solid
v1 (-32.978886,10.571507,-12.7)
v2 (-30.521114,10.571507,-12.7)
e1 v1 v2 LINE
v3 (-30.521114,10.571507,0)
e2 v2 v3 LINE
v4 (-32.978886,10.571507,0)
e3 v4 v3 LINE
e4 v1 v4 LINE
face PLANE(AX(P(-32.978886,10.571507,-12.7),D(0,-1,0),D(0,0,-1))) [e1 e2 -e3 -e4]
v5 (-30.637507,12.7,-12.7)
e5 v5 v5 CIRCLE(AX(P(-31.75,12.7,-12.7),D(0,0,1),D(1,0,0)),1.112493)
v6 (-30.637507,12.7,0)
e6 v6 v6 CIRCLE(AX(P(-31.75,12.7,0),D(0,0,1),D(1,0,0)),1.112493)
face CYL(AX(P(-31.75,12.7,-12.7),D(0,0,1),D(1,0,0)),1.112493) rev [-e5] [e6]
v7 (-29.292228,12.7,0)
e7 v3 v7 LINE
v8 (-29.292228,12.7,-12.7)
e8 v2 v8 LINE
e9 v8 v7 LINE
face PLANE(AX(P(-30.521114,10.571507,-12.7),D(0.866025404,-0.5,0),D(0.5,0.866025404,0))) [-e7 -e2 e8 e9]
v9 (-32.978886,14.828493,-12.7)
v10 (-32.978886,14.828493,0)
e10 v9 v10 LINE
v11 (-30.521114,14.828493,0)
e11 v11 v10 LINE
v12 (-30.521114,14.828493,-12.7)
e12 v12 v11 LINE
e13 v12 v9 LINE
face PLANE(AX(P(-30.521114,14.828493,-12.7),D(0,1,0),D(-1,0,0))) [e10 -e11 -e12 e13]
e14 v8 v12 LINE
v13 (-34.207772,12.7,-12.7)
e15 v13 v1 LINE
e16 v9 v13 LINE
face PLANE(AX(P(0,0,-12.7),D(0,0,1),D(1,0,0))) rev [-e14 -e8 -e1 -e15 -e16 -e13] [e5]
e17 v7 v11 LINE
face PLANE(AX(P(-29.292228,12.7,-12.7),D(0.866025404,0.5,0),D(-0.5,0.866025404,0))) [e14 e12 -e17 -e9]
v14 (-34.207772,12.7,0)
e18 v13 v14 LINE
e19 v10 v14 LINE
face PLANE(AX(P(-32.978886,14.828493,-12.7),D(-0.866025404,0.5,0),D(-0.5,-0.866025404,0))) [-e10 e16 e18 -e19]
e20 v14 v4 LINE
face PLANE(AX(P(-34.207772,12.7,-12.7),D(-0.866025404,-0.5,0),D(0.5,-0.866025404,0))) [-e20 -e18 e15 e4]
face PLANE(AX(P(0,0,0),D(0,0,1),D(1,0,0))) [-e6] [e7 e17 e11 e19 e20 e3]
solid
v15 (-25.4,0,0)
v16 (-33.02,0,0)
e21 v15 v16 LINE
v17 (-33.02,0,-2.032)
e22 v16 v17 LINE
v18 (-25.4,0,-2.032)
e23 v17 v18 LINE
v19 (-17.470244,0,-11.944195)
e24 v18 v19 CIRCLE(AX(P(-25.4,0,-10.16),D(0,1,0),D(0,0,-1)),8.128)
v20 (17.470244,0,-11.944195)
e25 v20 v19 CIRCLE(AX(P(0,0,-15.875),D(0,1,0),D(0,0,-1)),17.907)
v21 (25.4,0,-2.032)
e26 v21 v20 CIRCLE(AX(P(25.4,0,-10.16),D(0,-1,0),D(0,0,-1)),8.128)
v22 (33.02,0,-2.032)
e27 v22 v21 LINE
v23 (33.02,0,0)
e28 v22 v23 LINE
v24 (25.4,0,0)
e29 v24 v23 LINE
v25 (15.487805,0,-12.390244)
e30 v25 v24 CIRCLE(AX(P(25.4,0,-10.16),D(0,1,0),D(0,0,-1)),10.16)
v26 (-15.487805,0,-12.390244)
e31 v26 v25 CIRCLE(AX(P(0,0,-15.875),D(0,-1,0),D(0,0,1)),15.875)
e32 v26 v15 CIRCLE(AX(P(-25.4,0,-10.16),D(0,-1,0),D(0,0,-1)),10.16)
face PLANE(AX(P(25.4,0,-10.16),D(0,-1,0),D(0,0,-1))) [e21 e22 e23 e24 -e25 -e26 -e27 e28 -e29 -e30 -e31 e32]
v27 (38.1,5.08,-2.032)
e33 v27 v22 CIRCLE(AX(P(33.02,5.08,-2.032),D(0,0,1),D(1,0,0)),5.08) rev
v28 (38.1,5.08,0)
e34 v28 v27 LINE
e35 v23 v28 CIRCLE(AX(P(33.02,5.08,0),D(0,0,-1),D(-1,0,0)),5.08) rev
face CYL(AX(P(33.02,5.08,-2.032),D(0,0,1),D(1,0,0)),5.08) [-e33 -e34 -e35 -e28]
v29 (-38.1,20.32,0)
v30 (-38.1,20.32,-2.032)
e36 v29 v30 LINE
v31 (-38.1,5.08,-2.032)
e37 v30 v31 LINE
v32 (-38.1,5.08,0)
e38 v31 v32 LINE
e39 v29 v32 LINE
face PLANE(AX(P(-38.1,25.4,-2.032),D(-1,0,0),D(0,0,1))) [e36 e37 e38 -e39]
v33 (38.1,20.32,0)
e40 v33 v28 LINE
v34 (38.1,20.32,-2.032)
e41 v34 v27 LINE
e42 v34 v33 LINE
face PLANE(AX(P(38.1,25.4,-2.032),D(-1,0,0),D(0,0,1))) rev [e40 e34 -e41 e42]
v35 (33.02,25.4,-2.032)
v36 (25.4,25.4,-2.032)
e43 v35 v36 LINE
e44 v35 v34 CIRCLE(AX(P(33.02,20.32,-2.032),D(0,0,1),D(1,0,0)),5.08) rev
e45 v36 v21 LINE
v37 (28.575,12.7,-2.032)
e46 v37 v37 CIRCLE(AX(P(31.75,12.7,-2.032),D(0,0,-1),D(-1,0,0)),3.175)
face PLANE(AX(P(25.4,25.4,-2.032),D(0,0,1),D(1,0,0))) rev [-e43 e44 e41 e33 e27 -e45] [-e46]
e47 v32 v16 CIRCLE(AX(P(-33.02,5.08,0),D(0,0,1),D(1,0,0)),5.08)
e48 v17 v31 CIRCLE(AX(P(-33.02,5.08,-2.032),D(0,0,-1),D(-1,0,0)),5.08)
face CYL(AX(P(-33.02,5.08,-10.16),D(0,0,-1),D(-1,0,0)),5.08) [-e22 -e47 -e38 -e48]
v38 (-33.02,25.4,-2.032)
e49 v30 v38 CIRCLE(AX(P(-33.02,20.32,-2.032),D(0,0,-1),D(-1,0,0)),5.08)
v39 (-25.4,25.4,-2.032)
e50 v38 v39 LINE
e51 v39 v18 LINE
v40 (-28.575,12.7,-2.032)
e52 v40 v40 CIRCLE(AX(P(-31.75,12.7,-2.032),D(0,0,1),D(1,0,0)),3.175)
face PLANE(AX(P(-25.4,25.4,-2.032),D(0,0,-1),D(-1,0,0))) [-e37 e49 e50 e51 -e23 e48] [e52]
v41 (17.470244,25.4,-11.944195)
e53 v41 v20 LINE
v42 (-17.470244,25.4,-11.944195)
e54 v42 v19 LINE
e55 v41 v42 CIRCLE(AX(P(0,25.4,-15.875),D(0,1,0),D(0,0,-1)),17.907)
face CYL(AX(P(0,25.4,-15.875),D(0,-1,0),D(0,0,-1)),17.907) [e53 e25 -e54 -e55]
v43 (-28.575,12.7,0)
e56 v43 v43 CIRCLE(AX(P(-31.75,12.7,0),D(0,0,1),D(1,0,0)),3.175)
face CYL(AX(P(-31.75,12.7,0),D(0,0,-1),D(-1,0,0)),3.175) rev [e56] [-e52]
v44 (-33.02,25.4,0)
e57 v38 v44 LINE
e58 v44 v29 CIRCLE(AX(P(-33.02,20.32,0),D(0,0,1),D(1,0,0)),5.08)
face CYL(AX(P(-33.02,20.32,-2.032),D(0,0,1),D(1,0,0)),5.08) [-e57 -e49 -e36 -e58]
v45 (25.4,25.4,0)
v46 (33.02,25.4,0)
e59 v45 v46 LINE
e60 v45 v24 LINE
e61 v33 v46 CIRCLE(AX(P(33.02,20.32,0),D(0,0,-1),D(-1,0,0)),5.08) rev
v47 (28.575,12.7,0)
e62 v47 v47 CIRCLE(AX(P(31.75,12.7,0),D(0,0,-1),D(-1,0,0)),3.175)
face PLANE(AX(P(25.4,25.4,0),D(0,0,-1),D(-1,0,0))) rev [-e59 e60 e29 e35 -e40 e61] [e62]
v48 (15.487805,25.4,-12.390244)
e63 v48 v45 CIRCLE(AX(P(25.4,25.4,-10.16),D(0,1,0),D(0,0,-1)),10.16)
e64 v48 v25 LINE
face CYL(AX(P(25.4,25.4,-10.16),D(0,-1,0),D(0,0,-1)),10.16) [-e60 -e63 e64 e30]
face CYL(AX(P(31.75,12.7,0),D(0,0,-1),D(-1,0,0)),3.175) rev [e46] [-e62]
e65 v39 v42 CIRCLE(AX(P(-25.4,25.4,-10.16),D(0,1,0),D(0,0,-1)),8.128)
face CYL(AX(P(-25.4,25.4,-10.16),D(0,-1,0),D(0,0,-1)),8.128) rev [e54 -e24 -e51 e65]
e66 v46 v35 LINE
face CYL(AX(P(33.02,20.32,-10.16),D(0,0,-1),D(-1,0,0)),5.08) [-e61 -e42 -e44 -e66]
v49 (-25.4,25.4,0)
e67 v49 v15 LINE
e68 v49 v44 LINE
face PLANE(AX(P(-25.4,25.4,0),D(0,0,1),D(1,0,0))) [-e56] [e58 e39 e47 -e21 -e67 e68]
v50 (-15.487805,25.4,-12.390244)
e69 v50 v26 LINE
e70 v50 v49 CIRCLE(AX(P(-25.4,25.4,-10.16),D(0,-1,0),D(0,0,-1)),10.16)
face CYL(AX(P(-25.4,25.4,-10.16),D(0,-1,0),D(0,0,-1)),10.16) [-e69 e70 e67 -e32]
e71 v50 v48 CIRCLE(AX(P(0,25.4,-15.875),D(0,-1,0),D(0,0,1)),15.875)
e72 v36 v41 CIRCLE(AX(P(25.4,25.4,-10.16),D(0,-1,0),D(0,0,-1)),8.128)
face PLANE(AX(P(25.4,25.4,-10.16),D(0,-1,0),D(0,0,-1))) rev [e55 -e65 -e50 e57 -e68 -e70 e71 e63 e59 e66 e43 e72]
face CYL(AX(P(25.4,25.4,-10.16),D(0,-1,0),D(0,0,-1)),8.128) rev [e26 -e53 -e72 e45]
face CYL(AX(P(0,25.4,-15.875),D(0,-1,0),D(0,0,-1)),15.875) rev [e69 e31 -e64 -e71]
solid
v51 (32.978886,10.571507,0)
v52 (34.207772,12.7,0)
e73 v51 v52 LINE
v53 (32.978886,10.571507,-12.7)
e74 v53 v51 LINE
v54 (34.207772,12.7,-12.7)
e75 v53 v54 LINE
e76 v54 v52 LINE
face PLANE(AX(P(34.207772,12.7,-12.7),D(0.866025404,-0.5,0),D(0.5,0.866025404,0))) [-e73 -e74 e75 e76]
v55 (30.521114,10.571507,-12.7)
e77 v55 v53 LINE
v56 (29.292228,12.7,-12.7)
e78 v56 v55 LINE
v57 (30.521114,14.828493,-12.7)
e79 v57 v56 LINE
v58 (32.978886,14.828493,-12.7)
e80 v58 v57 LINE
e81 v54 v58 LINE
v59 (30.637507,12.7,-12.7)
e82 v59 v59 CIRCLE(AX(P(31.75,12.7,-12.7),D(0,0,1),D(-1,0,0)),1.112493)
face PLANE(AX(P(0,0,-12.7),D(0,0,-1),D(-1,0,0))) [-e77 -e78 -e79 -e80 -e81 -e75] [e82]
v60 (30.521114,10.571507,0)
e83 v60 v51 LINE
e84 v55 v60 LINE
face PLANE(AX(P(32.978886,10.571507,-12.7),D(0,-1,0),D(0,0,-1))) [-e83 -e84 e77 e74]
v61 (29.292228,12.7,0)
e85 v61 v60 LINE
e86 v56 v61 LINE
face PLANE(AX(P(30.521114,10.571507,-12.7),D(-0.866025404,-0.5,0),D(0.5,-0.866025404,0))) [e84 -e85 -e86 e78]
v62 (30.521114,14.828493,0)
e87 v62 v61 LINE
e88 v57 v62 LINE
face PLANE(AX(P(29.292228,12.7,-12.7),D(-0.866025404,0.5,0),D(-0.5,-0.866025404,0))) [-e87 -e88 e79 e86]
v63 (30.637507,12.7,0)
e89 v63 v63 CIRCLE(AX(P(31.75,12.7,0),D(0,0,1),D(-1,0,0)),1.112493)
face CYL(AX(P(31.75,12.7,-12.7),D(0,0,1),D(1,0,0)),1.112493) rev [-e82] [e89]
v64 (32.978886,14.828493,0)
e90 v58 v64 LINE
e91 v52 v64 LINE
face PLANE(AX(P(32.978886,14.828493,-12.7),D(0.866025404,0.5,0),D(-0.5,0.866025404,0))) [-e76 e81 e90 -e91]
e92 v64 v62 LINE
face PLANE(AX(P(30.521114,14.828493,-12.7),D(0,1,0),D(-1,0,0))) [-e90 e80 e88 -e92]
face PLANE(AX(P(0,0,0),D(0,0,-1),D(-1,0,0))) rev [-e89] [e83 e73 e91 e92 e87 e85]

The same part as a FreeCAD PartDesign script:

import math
import FreeCAD as App
import Part
import Sketcher
Q = App.Units.Quantity


def edges_at(feature, points):
    """Names of the edges that pass closest to the given points."""
    edges = feature.Shape.Edges
    near = lambda p: min(range(len(edges)), key=lambda i: edges[i].distToShape(Part.Vertex(*p))[0])
    return sorted({f"Edge{near(p) + 1}" for p in points})


def add_polygon(sketch, points):
    """Adds a closed chain of lines whose ends are joined by coincident constraints."""
    first, n = sketch.GeometryCount, len(points)
    for a, b in zip(points, points[1:] + points[:1]):
        sketch.addGeometry(Part.LineSegment(App.Vector(*a, 0), App.Vector(*b, 0)), False)
    for i in range(n):
        sketch.addConstraint(Sketcher.Constraint("Coincident", first + i, 2, first + (i + 1) % n, 1))

doc = App.newDocument("Part")
body = doc.addObject("PartDesign::Body", "Body")

sketch1 = doc.addObject("Sketcher::SketchObject", "Sketch")
body.addObject(sketch1)
sketch1.AttachmentSupport = (doc.XZ_Plane, [""])
sketch1.MapMode = "FlatFace"
sketch1.addGeometry([
    Part.LineSegment(App.Vector(0, -33.8, 0), App.Vector(0, -31.8, 0)),
    Part.ArcOfCircle(Part.Circle(App.Vector(0, -15.9, 0), App.Vector(0, 0, 1), 15.9), math.radians(-90), math.radians(13)),
    Part.ArcOfCircle(Part.Circle(App.Vector(25.4, -10.2, 0), App.Vector(0, 0, 1), 10.2), math.radians(90), math.radians(193)),
    Part.LineSegment(App.Vector(25.4, 0, 0), App.Vector(38.1, 0, 0)),
    Part.LineSegment(App.Vector(38.1, 0, 0), App.Vector(38.1, -2, 0)),
    Part.LineSegment(App.Vector(38.1, -2, 0), App.Vector(25.4, -2, 0)),
    Part.ArcOfCircle(Part.Circle(App.Vector(25.4, -10.2, 0), App.Vector(0, 0, 1), 8.1), math.radians(90), math.radians(193)),
    Part.ArcOfCircle(Part.Circle(App.Vector(0, -15.9, 0), App.Vector(0, 0, 1), 17.9), math.radians(-90), math.radians(13)),
], False)
sketch1.addConstraint([
    Sketcher.Constraint("Coincident", 0, 2, 1, 1),
    Sketcher.Constraint("Tangent", 1, 2, 2, 2),
    Sketcher.Constraint("Tangent", 2, 1, 3, 1),
    Sketcher.Constraint("Coincident", 3, 2, 4, 1),
    Sketcher.Constraint("Coincident", 4, 2, 5, 1),
    Sketcher.Constraint("Tangent", 5, 2, 6, 1),
    Sketcher.Constraint("Tangent", 6, 2, 7, 2),
    Sketcher.Constraint("Coincident", 7, 1, 0, 1),
    Sketcher.Constraint("Vertical", 0),
    Sketcher.Constraint("Horizontal", 3),
    Sketcher.Constraint("Vertical", 4),
    Sketcher.Constraint("Horizontal", 5),
    Sketcher.Constraint("Coincident", 6, 3, 2, 3),
    Sketcher.Constraint("Coincident", 7, 3, 1, 3),
    Sketcher.Constraint("PointOnObject", 1, 3, -2),
    Sketcher.Constraint("PointOnObject", 0, 2, -2),
    Sketcher.Constraint("PointOnObject", 2, 1, -1),
    Sketcher.Constraint("Radius", 2, Q("0.4 in")),
    Sketcher.Constraint("Radius", 6, Q("0.32 in")),
    Sketcher.Constraint("DistanceX", 3, 1, 3, 2, Q("0.5 in")),
    Sketcher.Constraint("DistanceX", -1, 1, 2, 3, Q("1 in")),
    Sketcher.Constraint("Radius", 1, Q("0.625 in")),
])
pad1 = doc.addObject("PartDesign::Pad", "Pad")
body.addObject(pad1)
pad1.Profile = sketch1
pad1.Length = Q("1 in")
pad1.Reversed = True
doc.recompute()

mirrored = doc.addObject("PartDesign::Mirrored", "Mirrored")
body.addObject(mirrored)
mirrored.Originals = [pad1]
mirrored.MirrorPlane = (doc.YZ_Plane, [""])
body.Tip = mirrored
doc.recompute()

fillet = doc.addObject("PartDesign::Fillet", "Fillet")
body.addObject(fillet)
fillet.Base = (mirrored, edges_at(mirrored, [
    (38.1, 25.4, -1.016),
    (-38.1, 25.4, -1.016),
    (-38.1, 0, -1.016),
    (38.1, 0, -1.016),
]))
fillet.Radius = Q("0.2 in")

sketch2 = doc.addObject("Sketcher::SketchObject", "Sketch001")
body.addObject(sketch2)
sketch2.AttachmentSupport = (doc.XY_Plane, [""])
sketch2.MapMode = "FlatFace"
sketch2.AttachmentOffset = App.Placement(App.Vector(0, 0, -0.08 * 25.4), App.Rotation())
sketch2.addGeometry(Part.Circle(App.Vector(31.8, 12.7, 0), App.Vector(0, 0, 1), 3.2), False)
sketch2.addConstraint([
    Sketcher.Constraint("Diameter", 0, Q("0.25 in")),
    Sketcher.Constraint("DistanceY", -1, 1, 0, 3, Q("0.5 in")),
    Sketcher.Constraint("DistanceX", -1, 1, 0, 3, Q("1.25 in")),
])
pocket1 = doc.addObject("PartDesign::Pocket", "Pocket")
body.addObject(pocket1)
pocket1.Profile = sketch2
pocket1.Type = "ThroughAll"
pocket1.Reversed = True
doc.recompute()

mirrored2 = doc.addObject("PartDesign::Mirrored", "Mirrored001")
body.addObject(mirrored2)
mirrored2.Originals = [pocket1]
mirrored2.MirrorPlane = (doc.YZ_Plane, [""])
body.Tip = mirrored2
body2 = doc.addObject("PartDesign::Body", "Body001")

sketch3 = doc.addObject("Sketcher::SketchObject", "Sketch002")
body2.addObject(sketch3)
sketch3.AttachmentSupport = (doc.getObject("XY_Plane001"), [""])
sketch3.MapMode = "FlatFace"
add_polygon(sketch3, [(-29.3, 12.7), (-30.5, 14.8), (-33, 14.8), (-34.2, 12.7), (-33, 10.6), (-30.5, 10.6)])
sketch3.addGeometry(Part.Circle(App.Vector(-31.8, 12.7, 0), App.Vector(0, 0, 1), 1.1), False)
sketch3.addConstraint([
    Sketcher.Constraint("Horizontal", 1),
    Sketcher.Constraint("Horizontal", 4),
    Sketcher.Constraint("Parallel", 0, 3),
    Sketcher.Constraint("Parallel", 2, 5),
    Sketcher.Constraint("Horizontal", 6, 3, 2, 2),
    Sketcher.Constraint("Horizontal", 2, 2, 5, 2),
    Sketcher.Constraint("Vertical", 1, 2, 3, 2),
    Sketcher.Constraint("Vertical", 0, 2, 4, 2),
    Sketcher.Constraint("Angle", 0, Q("120 deg")),
    Sketcher.Constraint("DistanceY", -1, 1, 6, 3, Q("0.5 in")),
    Sketcher.Constraint("DistanceX", 6, 3, -1, 1, Q("1.25 in")),
    Sketcher.Constraint("Diameter", 6, Q("2.224985 mm")),
    Sketcher.Constraint("DistanceX", 1, 2, 1, 1, Q("2.457772 mm")),
    Sketcher.Constraint("Distance", 0, Q("2.457772 mm")),
    Sketcher.Constraint("DistanceX", 2, 2, -1, 1, Q("34.207772 mm")),
])
pad2 = doc.addObject("PartDesign::Pad", "Pad001")
body2.addObject(pad2)
pad2.Profile = sketch3
pad2.Length = Q("0.5 in")
pad2.Reversed = True
body3 = doc.addObject("PartDesign::Body", "Body002")

sketch4 = doc.addObject("Sketcher::SketchObject", "Sketch003")
body3.addObject(sketch4)
sketch4.AttachmentSupport = (doc.getObject("XY_Plane002"), [""])
sketch4.MapMode = "FlatFace"
add_polygon(sketch4, [(29.3, 12.7), (30.5, 10.6), (33, 10.6), (34.2, 12.7), (33, 14.8), (30.5, 14.8)])
sketch4.addGeometry(Part.Circle(App.Vector(31.8, 12.7, 0), App.Vector(0, 0, 1), 1.1), False)
sketch4.addConstraint([
    Sketcher.Constraint("Horizontal", 1),
    Sketcher.Constraint("Horizontal", 4),
    Sketcher.Constraint("Parallel", 0, 3),
    Sketcher.Constraint("Parallel", 2, 5),
    Sketcher.Constraint("Horizontal", 6, 3, 2, 2),
    Sketcher.Constraint("Horizontal", 2, 2, 5, 2),
    Sketcher.Constraint("Vertical", 1, 2, 3, 2),
    Sketcher.Constraint("Vertical", 0, 2, 4, 2),
    Sketcher.Constraint("Angle", 0, Q("-60 deg")),
    Sketcher.Constraint("DistanceY", -1, 1, 6, 3, Q("0.5 in")),
    Sketcher.Constraint("DistanceX", -1, 1, 6, 3, Q("1.25 in")),
    Sketcher.Constraint("Diameter", 6, Q("2.224985 mm")),
    Sketcher.Constraint("DistanceX", 1, 1, 1, 2, Q("2.457772 mm")),
    Sketcher.Constraint("Distance", 0, Q("2.457772 mm")),
    Sketcher.Constraint("DistanceX", -1, 1, 2, 2, Q("34.207772 mm")),
])
pad3 = doc.addObject("PartDesign::Pad", "Pad002")
body3.addObject(pad3)
pad3.Profile = sketch4
pad3.Length = Q("0.5 in")
pad3.Reversed = True

doc.recompute()
